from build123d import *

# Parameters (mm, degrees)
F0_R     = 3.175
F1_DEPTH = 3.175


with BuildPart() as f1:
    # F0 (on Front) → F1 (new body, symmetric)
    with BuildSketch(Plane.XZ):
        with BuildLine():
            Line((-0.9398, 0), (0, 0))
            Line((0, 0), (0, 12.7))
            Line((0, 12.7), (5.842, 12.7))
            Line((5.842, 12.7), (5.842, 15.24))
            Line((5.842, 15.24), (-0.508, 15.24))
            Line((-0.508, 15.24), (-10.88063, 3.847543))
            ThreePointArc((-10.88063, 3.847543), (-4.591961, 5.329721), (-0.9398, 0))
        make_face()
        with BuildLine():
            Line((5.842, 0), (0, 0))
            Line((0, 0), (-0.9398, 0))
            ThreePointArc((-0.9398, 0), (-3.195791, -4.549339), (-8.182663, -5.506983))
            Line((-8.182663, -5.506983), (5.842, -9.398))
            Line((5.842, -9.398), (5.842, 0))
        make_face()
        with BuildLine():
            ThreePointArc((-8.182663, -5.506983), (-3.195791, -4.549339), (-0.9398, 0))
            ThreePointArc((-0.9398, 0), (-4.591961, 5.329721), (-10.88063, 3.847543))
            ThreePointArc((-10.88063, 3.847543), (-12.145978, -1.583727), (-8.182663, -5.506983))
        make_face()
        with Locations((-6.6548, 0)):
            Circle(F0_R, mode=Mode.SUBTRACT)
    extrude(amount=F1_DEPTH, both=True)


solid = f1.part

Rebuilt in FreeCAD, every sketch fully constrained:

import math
import FreeCAD as App
import Part
import Sketcher
Q = App.Units.Quantity

doc = App.newDocument("Part")
body = doc.addObject("PartDesign::Body", "Body")

# Sketch on XZ plane
sketch1 = body.newObject("Sketcher::SketchObject", "Sketch")
sketch1.AttachmentSupport = (doc.getObject("XZ_Plane"), [""])
sketch1.MapMode = "FlatFace"
sketch1.addGeometry([
    Part.LineSegment(App.Vector(0, 0, 0), App.Vector(0, 12.7, 0)),  # 0
    Part.LineSegment(App.Vector(0, 12.7, 0), App.Vector(5.8, 12.7, 0)),  # 1
    Part.LineSegment(App.Vector(5.8, 12.7, 0), App.Vector(5.8, 15.2, 0)),  # 2
    Part.LineSegment(App.Vector(5.8, 15.2, 0), App.Vector(-0.5, 15.2, 0)),  # 3
    Part.LineSegment(App.Vector(-0.5, 15.2, 0), App.Vector(-10.9, 3.8, 0)),  # 4
    Part.ArcOfCircle(Part.Circle(App.Vector(-6.7, 0, 0), App.Vector(0, 0, 1), 5.7), math.radians(138), math.radians(254)),  # 5
    Part.LineSegment(App.Vector(-8.2, -5.5, 0), App.Vector(5.8, -9.4, 0)),  # 6
    Part.LineSegment(App.Vector(5.8, -9.4, 0), App.Vector(5.8, 0, 0)),  # 7
    Part.LineSegment(App.Vector(5.8, 0, 0), App.Vector(0, 0, 0)),  # 8
    Part.Circle(App.Vector(-6.7, 0, 0), App.Vector(0, 0, 1), 3.2),  # 9
], False)
sketch1.addConstraint([
    Sketcher.Constraint("Coincident", 0, 2, 1, 1),
    Sketcher.Constraint("Coincident", 1, 2, 2, 1),
    Sketcher.Constraint("Coincident", 2, 2, 3, 1),
    Sketcher.Constraint("Coincident", 3, 2, 4, 1),
    Sketcher.Constraint("Tangent", 4, 2, 5, 1),
    Sketcher.Constraint("Tangent", 5, 2, 6, 1),
    Sketcher.Constraint("Coincident", 6, 2, 7, 1),
    Sketcher.Constraint("Coincident", 7, 2, 8, 1),
    Sketcher.Constraint("Coincident", 8, 2, 0, 1),
    Sketcher.Constraint("Vertical", 0),
    Sketcher.Constraint("Horizontal", 1),
    Sketcher.Constraint("Vertical", 2),
    Sketcher.Constraint("Horizontal", 3),
    Sketcher.Constraint("Vertical", 7),
    Sketcher.Constraint("Horizontal", 8),
    Sketcher.Constraint("Coincident", 8, 2, -1, 1),
    Sketcher.Constraint("Coincident", 9, 3, 5, 3),
    Sketcher.Constraint("PointOnObject", 5, 3, -1),
    Sketcher.Constraint("Vertical", 2, 2, 6, 2),
    Sketcher.Constraint("Diameter", 9, Q("0.25 in")),
    Sketcher.Constraint("DistanceY", 0, 1, 0, 2, Q("0.5 in")),
    Sketcher.Constraint("DistanceY", 2, 1, 2, 2, Q("0.1 in")),
    Sketcher.Constraint("Radius", 5, Q("0.225 in")),
    Sketcher.Constraint("DistanceX", 1, 1, 1, 2, Q("0.23 in")),
    Sketcher.Constraint("DistanceX", 3, 2, 3, 1, Q("0.25 in")),
    Sketcher.Constraint("DistanceY", 7, 1, 7, 2, Q("0.37 in")),
    Sketcher.Constraint("DistanceX", 5, 3, -1, 1, Q("0.262 in")),
])
pad1 = body.newObject("PartDesign::Pad", "Pad")
pad1.Profile = sketch1
pad1.Length = Q("0.25 in")
pad1.Midplane = True

doc.recompute()
